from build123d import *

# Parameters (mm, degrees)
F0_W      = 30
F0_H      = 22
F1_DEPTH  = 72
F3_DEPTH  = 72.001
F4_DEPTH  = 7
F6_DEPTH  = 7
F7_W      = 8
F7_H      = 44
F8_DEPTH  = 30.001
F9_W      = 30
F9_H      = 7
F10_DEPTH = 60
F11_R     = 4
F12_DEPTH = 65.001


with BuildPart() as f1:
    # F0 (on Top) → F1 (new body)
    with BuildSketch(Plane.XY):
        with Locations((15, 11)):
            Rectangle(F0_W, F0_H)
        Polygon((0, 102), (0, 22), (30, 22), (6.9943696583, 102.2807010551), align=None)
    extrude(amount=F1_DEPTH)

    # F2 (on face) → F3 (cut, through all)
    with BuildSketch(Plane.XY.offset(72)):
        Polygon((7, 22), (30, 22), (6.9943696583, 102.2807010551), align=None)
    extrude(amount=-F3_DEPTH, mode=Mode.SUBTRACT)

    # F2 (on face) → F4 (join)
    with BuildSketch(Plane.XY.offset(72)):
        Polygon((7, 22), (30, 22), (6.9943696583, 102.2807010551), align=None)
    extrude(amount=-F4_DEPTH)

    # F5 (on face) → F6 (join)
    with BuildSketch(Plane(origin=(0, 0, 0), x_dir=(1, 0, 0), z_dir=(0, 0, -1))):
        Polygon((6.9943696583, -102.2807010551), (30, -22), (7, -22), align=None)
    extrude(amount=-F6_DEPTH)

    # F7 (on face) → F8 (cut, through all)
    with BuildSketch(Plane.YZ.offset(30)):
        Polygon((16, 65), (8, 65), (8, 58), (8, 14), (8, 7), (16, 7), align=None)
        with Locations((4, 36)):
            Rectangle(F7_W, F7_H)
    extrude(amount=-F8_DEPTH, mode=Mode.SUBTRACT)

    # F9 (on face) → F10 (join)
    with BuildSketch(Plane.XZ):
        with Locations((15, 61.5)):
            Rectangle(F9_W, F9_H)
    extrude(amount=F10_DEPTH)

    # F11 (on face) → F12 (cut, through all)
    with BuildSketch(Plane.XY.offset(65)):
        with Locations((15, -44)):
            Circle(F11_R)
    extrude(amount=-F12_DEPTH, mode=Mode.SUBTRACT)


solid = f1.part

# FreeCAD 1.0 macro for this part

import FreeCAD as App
import Part
import Sketcher
from FreeCAD import Vector

doc = App.newDocument("Part")
body = doc.addObject("PartDesign::Body", "Body")

# Sketch on XY plane
sketch1 = doc.addObject("Sketcher::SketchObject", "Sketch")
body.addObject(sketch1)
sketch1.AttachmentSupport = (doc.XY_Plane, [""])
sketch1.MapMode = "FlatFace"
sketch1.addGeometry(Part.LineSegment(Vector(0, 0, 0), Vector(30, 0, 0)), False)
sketch1.addGeometry(Part.LineSegment(Vector(30, 0, 0), Vector(30, 22, 0)), False)
sketch1.addGeometry(Part.LineSegment(Vector(30, 22, 0), Vector(7, 102, 0)), False)
sketch1.addGeometry(Part.LineSegment(Vector(7, 102, 0), Vector(0, 102, 0)), False)
sketch1.addGeometry(Part.LineSegment(Vector(0, 102, 0), Vector(0, 0, 0)), False)
sketch1.addConstraint(Sketcher.Constraint("Coincident", 0, 2, 1, 1))
sketch1.addConstraint(Sketcher.Constraint("Coincident", 1, 2, 2, 1))
sketch1.addConstraint(Sketcher.Constraint("Coincident", 2, 2, 3, 1))
sketch1.addConstraint(Sketcher.Constraint("Coincident", 3, 2, 4, 1))
sketch1.addConstraint(Sketcher.Constraint("Coincident", 4, 2, 0, 1))
sketch1.addConstraint(Sketcher.Constraint("Horizontal", 0))
sketch1.addConstraint(Sketcher.Constraint("Vertical", 1))
sketch1.addConstraint(Sketcher.Constraint("Vertical", 4))
sketch1.addConstraint(Sketcher.Constraint("Coincident", 4, 2, -1, 1))
sketch1.addConstraint(Sketcher.Constraint("DistanceX", 0, 1, 0, 2, 30.0))
sketch1.addConstraint(Sketcher.Constraint("DistanceY", 1, 1, 1, 2, 22.0))
sketch1.addConstraint(Sketcher.Constraint("DistanceY", 4, 2, 4, 1, 102.0))
sketch1.addConstraint(Sketcher.Constraint("Distance", 3, 7.0))
sketch1.addConstraint(Sketcher.Constraint("DistanceY", -1, 1, 2, 2, 102.280701))
pad1 = doc.addObject("PartDesign::Pad", "Pad")
body.addObject(pad1)
pad1.Profile = sketch1
pad1.Length = 72

# Sketch on XY plane
sketch2 = doc.addObject("Sketcher::SketchObject", "Sketch001")
body.addObject(sketch2)
sketch2.AttachmentSupport = (doc.XY_Plane, [""])
sketch2.MapMode = "FlatFace"
sketch2.AttachmentOffset = App.Placement(Vector(0, 0, 72), App.Rotation())
sketch2.addGeometry(Part.LineSegment(Vector(7, 22, 0), Vector(30, 22, 0)), False)
sketch2.addGeometry(Part.LineSegment(Vector(30, 22, 0), Vector(7, 102, 0)), False)
sketch2.addGeometry(Part.LineSegment(Vector(7, 102, 0), Vector(7, 22, 0)), False)
sketch2.addConstraint(Sketcher.Constraint("Coincident", 0, 2, 1, 1))
sketch2.addConstraint(Sketcher.Constraint("Coincident", 1, 2, 2, 1))
sketch2.addConstraint(Sketcher.Constraint("Coincident", 2, 2, 0, 1))
sketch2.addConstraint(Sketcher.Constraint("Horizontal", 0))
sketch2.addConstraint(Sketcher.Constraint("DistanceX", 0, 1, 0, 2, 23.0))
sketch2.addConstraint(Sketcher.Constraint("DistanceX", -1, 1, 0, 2, 30.0))
sketch2.addConstraint(Sketcher.Constraint("DistanceY", -1, 1, 0, 2, 22.0))
sketch2.addConstraint(Sketcher.Constraint("Distance", 2, 80.280701))
sketch2.addConstraint(Sketcher.Constraint("DistanceX", -1, 1, 1, 2, 6.99437))
pocket1 = doc.addObject("PartDesign::Pocket", "Pocket")
body.addObject(pocket1)
pocket1.Profile = sketch2
pocket1.Type = "ThroughAll"

# Sketch on XY plane
sketch3 = doc.addObject("Sketcher::SketchObject", "Sketch002")
body.addObject(sketch3)
sketch3.AttachmentSupport = (doc.XY_Plane, [""])
sketch3.MapMode = "FlatFace"
sketch3.AttachmentOffset = App.Placement(Vector(0, 0, 72), App.Rotation())
sketch3.addGeometry(Part.LineSegment(Vector(7, 22, 0), Vector(30, 22, 0)), False)
sketch3.addGeometry(Part.LineSegment(Vector(30, 22, 0), Vector(7, 102, 0)), False)
sketch3.addGeometry(Part.LineSegment(Vector(7, 102, 0), Vector(7, 22, 0)), False)
sketch3.addConstraint(Sketcher.Constraint("Coincident", 0, 2, 1, 1))
sketch3.addConstraint(Sketcher.Constraint("Coincident", 1, 2, 2, 1))
sketch3.addConstraint(Sketcher.Constraint("Coincident", 2, 2, 0, 1))
sketch3.addConstraint(Sketcher.Constraint("Horizontal", 0))
sketch3.addConstraint(Sketcher.Constraint("DistanceX", 0, 1, 0, 2, 23.0))
sketch3.addConstraint(Sketcher.Constraint("DistanceX", -1, 1, 0, 2, 30.0))
sketch3.addConstraint(Sketcher.Constraint("DistanceY", -1, 1, 0, 2, 22.0))
sketch3.addConstraint(Sketcher.Constraint("Distance", 2, 80.280701))
sketch3.addConstraint(Sketcher.Constraint("DistanceX", -1, 1, 1, 2, 6.99437))
pad2 = doc.addObject("PartDesign::Pad", "Pad001")
body.addObject(pad2)
pad2.Profile = sketch3
pad2.Length = 7
pad2.Reversed = True

# Sketch on XY plane
sketch4 = doc.addObject("Sketcher::SketchObject", "Sketch003")
body.addObject(sketch4)
sketch4.AttachmentSupport = (doc.XY_Plane, [""])
sketch4.MapMode = "FlatFace"
sketch4.addGeometry(Part.LineSegment(Vector(7, 102, 0), Vector(30, 22, 0)), False)
sketch4.addGeometry(Part.LineSegment(Vector(30, 22, 0), Vector(7, 22, 0)), False)
sketch4.addGeometry(Part.LineSegment(Vector(7, 22, 0), Vector(7, 102, 0)), False)
sketch4.addConstraint(Sketcher.Constraint("Coincident", 0, 2, 1, 1))
sketch4.addConstraint(Sketcher.Constraint("Coincident", 1, 2, 2, 1))
sketch4.addConstraint(Sketcher.Constraint("Coincident", 2, 2, 0, 1))
sketch4.addConstraint(Sketcher.Constraint("Horizontal", 1))
sketch4.addConstraint(Sketcher.Constraint("DistanceX", 1, 2, 1, 1, 23.0))
sketch4.addConstraint(Sketcher.Constraint("DistanceX", -1, 1, 0, 2, 30.0))
sketch4.addConstraint(Sketcher.Constraint("DistanceY", -1, 1, 0, 2, 22.0))
sketch4.addConstraint(Sketcher.Constraint("Distance", 2, 80.280701))
sketch4.addConstraint(Sketcher.Constraint("DistanceX", -1, 1, 2, 2, 6.99437))
pad3 = doc.addObject("PartDesign::Pad", "Pad002")
body.addObject(pad3)
pad3.Profile = sketch4
pad3.Length = 7

# Sketch on YZ plane
sketch5 = doc.addObject("Sketcher::SketchObject", "Sketch004")
body.addObject(sketch5)
sketch5.AttachmentSupport = (doc.YZ_Plane, [""])
sketch5.MapMode = "FlatFace"
sketch5.AttachmentOffset = App.Placement(Vector(0, 0, 30), App.Rotation())
sketch5.addGeometry(Part.LineSegment(Vector(16, 65, 0), Vector(8, 65, 0)), False)
sketch5.addGeometry(Part.LineSegment(Vector(8, 65, 0), Vector(8, 58, 0)), False)
sketch5.addGeometry(Part.LineSegment(Vector(8, 58, 0), Vector(0, 58, 0)), False)
sketch5.addGeometry(Part.LineSegment(Vector(0, 58, 0), Vector(0, 14, 0)), False)
sketch5.addGeometry(Part.LineSegment(Vector(0, 14, 0), Vector(8, 14, 0)), False)
sketch5.addGeometry(Part.LineSegment(Vector(8, 14, 0), Vector(8, 7, 0)), False)
sketch5.addGeometry(Part.LineSegment(Vector(8, 7, 0), Vector(16, 7, 0)), False)
sketch5.addGeometry(Part.LineSegment(Vector(16, 7, 0), Vector(16, 65, 0)), False)
sketch5.addConstraint(Sketcher.Constraint("Coincident", 0, 2, 1, 1))
sketch5.addConstraint(Sketcher.Constraint("Coincident", 1, 2, 2, 1))
sketch5.addConstraint(Sketcher.Constraint("Coincident", 2, 2, 3, 1))
sketch5.addConstraint(Sketcher.Constraint("Coincident", 3, 2, 4, 1))
sketch5.addConstraint(Sketcher.Constraint("Coincident", 4, 2, 5, 1))
sketch5.addConstraint(Sketcher.Constraint("Coincident", 5, 2, 6, 1))
sketch5.addConstraint(Sketcher.Constraint("Coincident", 6, 2, 7, 1))
sketch5.addConstraint(Sketcher.Constraint("Coincident", 7, 2, 0, 1))
sketch5.addConstraint(Sketcher.Constraint("Horizontal", 0))
sketch5.addConstraint(Sketcher.Constraint("Vertical", 1))
sketch5.addConstraint(Sketcher.Constraint("Horizontal", 2))
sketch5.addConstraint(Sketcher.Constraint("Vertical", 3))
sketch5.addConstraint(Sketcher.Constraint("Horizontal", 4))
sketch5.addConstraint(Sketcher.Constraint("Vertical", 5))
sketch5.addConstraint(Sketcher.Constraint("Horizontal", 6))
sketch5.addConstraint(Sketcher.Constraint("Vertical", 7))
sketch5.addConstraint(Sketcher.Constraint("PointOnObject", 2, 2, -2))
sketch5.addConstraint(Sketcher.Constraint("Vertical", 1, 2, 4, 2))
sketch5.addConstraint(Sketcher.Constraint("Equal", 0, 2))
sketch5.addConstraint(Sketcher.Constraint("Equal", 1, 5))
sketch5.addConstraint(Sketcher.Constraint("DistanceX", 0, 2, 0, 1, 8.0))
sketch5.addConstraint(Sketcher.Constraint("DistanceY", 1, 2, 1, 1, 7.0))
sketch5.addConstraint(Sketcher.Constraint("DistanceY", 3, 2, 3, 1, 44.0))
sketch5.addConstraint(Sketcher.Constraint("DistanceY", -1, 1, 0, 2, 65.0))
pocket2 = doc.addObject("PartDesign::Pocket", "Pocket001")
body.addObject(pocket2)
pocket2.Profile = sketch5
pocket2.Type = "ThroughAll"

# Sketch on XZ plane
sketch6 = doc.addObject("Sketcher::SketchObject", "Sketch005")
body.addObject(sketch6)
sketch6.AttachmentSupport = (doc.XZ_Plane, [""])
sketch6.MapMode = "FlatFace"
sketch6.addGeometry(Part.LineSegment(Vector(0, 65, 0), Vector(0, 58, 0)), False)
sketch6.addGeometry(Part.LineSegment(Vector(0, 58, 0), Vector(30, 58, 0)), False)
sketch6.addGeometry(Part.LineSegment(Vector(30, 58, 0), Vector(30, 65, 0)), False)
sketch6.addGeometry(Part.LineSegment(Vector(30, 65, 0), Vector(0, 65, 0)), False)
sketch6.addConstraint(Sketcher.Constraint("Coincident", 0, 2, 1, 1))
sketch6.addConstraint(Sketcher.Constraint("Coincident", 1, 2, 2, 1))
sketch6.addConstraint(Sketcher.Constraint("Coincident", 2, 2, 3, 1))
sketch6.addConstraint(Sketcher.Constraint("Coincident", 3, 2, 0, 1))
sketch6.addConstraint(Sketcher.Constraint("Vertical", 0))
sketch6.addConstraint(Sketcher.Constraint("Horizontal", 1))
sketch6.addConstraint(Sketcher.Constraint("Vertical", 2))
sketch6.addConstraint(Sketcher.Constraint("Horizontal", 3))
sketch6.addConstraint(Sketcher.Constraint("PointOnObject", 0, 2, -2))
sketch6.addConstraint(Sketcher.Constraint("DistanceX", 1, 1, 1, 2, 30.0))
sketch6.addConstraint(Sketcher.Constraint("DistanceY", 0, 2, 0, 1, 7.0))
sketch6.addConstraint(Sketcher.Constraint("DistanceY", -1, 1, 0, 2, 58.0))
pad4 = doc.addObject("PartDesign::Pad", "Pad003")
body.addObject(pad4)
pad4.Profile = sketch6
pad4.Length = 60

# Sketch on XY plane
sketch7 = doc.addObject("Sketcher::SketchObject", "Sketch006")
body.addObject(sketch7)
sketch7.AttachmentSupport = (doc.XY_Plane, [""])
sketch7.MapMode = "FlatFace"
sketch7.AttachmentOffset = App.Placement(Vector(0, 0, 65), App.Rotation())
sketch7.addGeometry(Part.Circle(Vector(15, -44, 0), Vector(0, 0, 1), 4), False)
sketch7.addConstraint(Sketcher.Constraint("Diameter", 0, 8.0))
sketch7.addConstraint(Sketcher.Constraint("DistanceX", -1, 1, 0, 3, 15.0))
sketch7.addConstraint(Sketcher.Constraint("DistanceY", 0, 3, -1, 1, 44.0))
pocket3 = doc.addObject("PartDesign::Pocket", "Pocket002")
body.addObject(pocket3)
pocket3.Profile = sketch7
pocket3.Type = "ThroughAll"

doc.recompute()
